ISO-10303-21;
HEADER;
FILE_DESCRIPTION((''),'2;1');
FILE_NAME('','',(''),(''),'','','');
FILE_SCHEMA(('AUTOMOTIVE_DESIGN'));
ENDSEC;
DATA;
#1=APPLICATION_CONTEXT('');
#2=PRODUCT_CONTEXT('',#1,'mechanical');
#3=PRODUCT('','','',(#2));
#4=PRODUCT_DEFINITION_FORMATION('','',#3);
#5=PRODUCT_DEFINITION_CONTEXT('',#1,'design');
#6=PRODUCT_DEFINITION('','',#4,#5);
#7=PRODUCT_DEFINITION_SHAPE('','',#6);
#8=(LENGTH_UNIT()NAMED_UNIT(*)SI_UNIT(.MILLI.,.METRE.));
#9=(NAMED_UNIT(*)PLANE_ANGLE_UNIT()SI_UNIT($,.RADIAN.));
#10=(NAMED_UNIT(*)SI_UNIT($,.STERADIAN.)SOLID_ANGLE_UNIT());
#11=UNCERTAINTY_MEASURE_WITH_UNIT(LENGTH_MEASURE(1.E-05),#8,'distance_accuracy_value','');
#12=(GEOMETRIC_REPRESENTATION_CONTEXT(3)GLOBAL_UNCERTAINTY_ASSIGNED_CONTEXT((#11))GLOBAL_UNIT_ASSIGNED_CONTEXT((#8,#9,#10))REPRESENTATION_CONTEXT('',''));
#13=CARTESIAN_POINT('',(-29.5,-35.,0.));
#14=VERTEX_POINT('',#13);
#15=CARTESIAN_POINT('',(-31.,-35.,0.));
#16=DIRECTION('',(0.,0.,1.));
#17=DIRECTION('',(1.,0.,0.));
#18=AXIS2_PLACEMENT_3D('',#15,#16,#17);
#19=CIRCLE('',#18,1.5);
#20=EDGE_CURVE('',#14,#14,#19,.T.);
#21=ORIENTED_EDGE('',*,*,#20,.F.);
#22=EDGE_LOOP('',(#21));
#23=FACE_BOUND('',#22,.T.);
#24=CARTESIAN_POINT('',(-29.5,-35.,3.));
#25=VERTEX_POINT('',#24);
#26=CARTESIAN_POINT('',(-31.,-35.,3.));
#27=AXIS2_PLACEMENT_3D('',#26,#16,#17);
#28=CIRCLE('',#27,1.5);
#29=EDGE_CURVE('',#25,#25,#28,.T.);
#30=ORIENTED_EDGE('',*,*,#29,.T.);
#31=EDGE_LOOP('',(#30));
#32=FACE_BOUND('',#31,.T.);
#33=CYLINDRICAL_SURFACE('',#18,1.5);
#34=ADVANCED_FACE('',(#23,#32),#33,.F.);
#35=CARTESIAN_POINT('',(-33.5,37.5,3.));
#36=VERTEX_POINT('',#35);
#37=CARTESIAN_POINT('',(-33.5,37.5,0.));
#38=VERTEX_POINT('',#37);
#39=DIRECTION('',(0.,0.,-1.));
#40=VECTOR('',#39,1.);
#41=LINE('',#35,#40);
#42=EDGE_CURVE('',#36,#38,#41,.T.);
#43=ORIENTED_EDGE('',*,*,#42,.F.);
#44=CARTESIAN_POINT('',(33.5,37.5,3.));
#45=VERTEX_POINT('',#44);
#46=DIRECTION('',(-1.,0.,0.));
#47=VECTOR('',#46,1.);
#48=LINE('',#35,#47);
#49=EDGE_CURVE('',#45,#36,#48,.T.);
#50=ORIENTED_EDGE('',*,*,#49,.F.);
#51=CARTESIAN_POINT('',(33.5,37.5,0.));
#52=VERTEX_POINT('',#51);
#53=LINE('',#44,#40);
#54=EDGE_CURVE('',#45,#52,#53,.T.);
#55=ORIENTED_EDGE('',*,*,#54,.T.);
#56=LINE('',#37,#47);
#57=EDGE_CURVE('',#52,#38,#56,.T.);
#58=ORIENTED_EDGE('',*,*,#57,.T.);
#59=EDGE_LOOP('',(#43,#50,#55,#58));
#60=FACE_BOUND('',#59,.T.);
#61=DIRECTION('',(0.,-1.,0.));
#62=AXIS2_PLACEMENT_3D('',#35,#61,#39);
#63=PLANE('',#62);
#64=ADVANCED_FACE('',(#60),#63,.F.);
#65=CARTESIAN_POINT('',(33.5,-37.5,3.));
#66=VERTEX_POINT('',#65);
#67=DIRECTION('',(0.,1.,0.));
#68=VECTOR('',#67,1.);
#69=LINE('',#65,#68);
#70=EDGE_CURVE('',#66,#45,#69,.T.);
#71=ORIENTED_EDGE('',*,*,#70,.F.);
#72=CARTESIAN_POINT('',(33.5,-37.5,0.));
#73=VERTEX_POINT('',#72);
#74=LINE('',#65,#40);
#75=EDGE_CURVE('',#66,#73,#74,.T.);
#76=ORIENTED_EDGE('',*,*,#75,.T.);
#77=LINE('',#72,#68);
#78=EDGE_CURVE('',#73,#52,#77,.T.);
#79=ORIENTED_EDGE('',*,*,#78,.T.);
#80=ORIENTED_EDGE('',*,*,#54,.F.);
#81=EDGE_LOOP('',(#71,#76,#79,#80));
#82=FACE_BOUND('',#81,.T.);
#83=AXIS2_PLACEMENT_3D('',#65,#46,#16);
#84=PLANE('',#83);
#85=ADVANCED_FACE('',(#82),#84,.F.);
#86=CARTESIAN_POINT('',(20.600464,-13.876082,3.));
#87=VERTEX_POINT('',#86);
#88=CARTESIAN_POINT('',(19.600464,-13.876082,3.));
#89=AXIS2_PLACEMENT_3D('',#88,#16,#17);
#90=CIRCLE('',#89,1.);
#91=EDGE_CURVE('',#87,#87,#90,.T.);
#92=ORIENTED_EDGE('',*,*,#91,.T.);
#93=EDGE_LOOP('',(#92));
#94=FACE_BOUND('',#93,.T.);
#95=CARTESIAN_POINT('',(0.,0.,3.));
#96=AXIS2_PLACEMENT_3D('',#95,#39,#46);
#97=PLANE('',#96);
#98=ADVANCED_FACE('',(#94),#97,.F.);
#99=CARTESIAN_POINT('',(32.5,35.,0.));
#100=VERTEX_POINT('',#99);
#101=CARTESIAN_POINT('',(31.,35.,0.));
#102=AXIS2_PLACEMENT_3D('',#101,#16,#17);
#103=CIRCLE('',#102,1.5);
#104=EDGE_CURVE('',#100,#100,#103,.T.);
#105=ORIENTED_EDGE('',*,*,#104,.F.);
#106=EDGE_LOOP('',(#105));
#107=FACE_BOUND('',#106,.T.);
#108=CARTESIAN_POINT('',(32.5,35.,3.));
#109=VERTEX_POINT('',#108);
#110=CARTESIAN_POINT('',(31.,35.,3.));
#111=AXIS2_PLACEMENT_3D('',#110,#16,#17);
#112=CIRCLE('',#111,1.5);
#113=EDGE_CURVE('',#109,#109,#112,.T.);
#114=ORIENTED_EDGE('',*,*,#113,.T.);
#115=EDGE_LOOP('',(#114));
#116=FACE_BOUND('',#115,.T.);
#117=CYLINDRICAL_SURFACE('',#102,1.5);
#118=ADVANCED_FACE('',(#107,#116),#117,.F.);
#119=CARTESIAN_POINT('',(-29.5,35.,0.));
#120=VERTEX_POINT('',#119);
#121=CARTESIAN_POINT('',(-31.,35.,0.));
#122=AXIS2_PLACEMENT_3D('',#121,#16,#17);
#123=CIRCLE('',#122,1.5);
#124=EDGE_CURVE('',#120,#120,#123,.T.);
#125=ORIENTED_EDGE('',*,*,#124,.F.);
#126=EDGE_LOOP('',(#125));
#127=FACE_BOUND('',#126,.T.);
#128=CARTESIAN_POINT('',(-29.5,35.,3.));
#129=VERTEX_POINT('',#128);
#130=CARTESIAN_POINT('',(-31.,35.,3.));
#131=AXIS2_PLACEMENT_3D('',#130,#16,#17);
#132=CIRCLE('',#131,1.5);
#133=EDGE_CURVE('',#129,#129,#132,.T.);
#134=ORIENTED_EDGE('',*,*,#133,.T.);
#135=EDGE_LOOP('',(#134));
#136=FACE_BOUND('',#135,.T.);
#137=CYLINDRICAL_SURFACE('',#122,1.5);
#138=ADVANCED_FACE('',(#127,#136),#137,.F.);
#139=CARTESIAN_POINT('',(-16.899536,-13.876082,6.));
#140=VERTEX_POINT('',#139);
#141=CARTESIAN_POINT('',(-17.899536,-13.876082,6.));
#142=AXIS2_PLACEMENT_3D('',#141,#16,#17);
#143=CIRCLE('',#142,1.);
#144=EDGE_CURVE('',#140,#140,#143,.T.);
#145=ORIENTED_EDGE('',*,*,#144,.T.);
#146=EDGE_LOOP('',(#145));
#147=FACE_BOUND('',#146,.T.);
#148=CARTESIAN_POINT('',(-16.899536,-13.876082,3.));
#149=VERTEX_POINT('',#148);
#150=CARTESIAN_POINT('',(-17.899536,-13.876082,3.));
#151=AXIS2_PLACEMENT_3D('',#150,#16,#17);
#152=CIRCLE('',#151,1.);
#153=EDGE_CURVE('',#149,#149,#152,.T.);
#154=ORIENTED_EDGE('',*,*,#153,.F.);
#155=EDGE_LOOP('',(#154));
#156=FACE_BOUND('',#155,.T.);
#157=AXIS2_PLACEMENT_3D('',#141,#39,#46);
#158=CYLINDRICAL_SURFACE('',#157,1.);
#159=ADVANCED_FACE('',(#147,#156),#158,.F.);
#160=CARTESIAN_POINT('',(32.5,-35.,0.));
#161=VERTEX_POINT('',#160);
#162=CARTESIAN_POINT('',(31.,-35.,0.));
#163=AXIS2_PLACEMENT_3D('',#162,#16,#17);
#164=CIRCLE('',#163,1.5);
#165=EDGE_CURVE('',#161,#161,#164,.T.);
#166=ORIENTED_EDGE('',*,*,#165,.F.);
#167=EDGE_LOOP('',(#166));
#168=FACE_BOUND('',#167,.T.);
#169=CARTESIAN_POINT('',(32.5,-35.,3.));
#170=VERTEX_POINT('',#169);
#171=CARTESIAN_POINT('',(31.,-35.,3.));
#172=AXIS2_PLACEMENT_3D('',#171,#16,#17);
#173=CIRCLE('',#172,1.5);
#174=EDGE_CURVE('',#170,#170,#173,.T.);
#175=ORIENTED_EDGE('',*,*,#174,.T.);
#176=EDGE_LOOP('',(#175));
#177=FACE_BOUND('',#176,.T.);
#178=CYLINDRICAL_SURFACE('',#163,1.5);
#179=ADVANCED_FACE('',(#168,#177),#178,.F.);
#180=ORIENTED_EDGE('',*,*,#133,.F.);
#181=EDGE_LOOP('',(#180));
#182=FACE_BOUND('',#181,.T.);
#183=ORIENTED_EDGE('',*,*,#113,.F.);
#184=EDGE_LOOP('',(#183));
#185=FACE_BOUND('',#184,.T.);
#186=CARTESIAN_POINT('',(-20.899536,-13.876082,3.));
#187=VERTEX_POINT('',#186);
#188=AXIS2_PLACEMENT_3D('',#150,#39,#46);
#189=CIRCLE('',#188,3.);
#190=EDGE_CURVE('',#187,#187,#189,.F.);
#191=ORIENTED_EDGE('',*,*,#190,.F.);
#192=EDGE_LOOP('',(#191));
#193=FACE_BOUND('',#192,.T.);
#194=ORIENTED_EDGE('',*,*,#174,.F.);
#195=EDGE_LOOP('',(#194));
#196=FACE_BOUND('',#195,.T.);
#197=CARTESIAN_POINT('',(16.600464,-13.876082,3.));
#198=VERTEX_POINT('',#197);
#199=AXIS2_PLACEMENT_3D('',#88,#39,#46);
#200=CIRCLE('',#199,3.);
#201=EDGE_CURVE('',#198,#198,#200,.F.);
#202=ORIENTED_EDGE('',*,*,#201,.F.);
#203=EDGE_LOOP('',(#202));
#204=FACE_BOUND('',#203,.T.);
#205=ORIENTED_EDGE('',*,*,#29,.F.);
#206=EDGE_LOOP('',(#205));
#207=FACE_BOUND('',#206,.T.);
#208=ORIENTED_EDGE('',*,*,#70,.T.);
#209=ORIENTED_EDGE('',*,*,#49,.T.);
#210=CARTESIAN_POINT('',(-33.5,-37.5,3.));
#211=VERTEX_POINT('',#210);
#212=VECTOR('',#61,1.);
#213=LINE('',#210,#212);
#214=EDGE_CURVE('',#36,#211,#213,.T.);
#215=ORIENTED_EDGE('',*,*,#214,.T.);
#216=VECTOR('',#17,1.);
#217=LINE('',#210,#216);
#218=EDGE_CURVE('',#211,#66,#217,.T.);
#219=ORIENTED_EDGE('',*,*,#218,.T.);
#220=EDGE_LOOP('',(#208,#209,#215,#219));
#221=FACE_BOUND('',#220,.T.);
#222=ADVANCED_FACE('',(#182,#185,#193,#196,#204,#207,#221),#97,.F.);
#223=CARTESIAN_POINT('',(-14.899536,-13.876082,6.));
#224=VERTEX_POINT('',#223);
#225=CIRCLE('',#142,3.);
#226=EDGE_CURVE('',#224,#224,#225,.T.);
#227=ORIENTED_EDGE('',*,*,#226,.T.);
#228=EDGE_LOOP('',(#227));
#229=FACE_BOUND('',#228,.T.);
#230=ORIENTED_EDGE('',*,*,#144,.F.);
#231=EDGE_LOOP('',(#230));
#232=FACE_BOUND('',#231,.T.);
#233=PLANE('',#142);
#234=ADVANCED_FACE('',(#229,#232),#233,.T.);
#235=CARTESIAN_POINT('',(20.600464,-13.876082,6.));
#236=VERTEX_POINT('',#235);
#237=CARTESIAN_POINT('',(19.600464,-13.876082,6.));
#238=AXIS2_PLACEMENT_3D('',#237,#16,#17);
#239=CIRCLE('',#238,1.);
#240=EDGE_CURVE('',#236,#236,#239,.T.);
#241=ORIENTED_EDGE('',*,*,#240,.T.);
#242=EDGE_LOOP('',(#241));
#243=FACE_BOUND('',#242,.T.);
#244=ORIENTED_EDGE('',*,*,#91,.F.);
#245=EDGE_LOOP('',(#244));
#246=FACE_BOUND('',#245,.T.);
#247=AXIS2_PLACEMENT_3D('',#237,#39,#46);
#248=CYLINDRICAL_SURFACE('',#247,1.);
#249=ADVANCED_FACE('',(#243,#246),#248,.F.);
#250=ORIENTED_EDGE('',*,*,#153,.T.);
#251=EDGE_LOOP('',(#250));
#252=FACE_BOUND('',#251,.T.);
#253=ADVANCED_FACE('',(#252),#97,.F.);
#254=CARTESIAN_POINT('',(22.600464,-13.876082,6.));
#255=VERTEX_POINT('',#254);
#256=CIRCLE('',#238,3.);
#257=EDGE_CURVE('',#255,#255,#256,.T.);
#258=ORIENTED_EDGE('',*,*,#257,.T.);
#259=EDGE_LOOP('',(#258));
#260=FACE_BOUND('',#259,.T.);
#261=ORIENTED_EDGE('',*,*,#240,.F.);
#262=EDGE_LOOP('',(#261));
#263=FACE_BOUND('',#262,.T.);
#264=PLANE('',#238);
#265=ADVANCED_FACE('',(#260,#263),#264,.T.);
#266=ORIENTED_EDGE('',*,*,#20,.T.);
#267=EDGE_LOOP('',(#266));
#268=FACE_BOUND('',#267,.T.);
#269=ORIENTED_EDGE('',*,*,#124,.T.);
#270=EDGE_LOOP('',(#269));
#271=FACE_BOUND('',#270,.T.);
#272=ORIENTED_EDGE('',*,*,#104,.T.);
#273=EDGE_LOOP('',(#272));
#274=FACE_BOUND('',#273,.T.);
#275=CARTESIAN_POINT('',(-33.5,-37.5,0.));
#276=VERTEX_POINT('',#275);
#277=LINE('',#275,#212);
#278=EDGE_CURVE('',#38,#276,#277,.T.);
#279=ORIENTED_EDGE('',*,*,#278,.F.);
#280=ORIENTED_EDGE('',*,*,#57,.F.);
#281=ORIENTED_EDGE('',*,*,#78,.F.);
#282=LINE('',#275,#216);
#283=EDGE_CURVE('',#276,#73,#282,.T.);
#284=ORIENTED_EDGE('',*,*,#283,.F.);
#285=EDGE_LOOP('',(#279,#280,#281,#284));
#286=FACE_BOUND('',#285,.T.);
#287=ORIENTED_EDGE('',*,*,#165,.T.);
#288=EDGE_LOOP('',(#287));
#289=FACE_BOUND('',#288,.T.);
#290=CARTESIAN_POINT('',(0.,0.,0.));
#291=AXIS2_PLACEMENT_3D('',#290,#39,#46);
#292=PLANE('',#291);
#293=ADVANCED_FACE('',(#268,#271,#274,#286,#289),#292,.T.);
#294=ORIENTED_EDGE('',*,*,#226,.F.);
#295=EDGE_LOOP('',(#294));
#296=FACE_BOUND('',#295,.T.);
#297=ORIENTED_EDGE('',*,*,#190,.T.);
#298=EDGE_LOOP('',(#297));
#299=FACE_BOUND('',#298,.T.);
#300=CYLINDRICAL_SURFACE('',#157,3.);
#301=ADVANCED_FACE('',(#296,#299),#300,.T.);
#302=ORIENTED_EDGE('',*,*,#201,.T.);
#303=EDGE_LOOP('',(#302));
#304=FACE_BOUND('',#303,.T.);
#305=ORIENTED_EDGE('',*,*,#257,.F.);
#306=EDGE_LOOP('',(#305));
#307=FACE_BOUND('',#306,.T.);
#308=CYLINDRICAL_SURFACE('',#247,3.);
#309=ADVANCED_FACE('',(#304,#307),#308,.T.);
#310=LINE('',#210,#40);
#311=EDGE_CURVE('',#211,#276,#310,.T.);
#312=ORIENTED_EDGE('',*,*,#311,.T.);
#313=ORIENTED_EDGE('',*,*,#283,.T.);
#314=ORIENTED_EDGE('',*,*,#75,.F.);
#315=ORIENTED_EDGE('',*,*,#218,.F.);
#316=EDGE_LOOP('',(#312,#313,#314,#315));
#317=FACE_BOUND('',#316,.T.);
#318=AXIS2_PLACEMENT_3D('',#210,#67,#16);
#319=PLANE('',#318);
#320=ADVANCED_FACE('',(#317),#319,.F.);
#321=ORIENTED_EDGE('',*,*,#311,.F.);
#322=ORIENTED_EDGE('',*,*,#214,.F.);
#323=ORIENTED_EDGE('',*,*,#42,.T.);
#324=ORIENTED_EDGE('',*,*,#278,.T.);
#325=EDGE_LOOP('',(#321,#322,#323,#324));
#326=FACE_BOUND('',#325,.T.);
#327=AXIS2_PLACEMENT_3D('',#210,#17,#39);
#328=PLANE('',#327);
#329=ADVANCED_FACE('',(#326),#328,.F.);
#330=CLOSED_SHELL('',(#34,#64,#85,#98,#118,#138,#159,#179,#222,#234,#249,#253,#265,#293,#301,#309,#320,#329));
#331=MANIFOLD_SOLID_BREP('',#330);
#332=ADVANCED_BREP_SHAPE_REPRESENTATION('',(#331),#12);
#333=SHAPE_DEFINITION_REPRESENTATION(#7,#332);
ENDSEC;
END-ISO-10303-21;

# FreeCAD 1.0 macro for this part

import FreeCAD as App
import Part
import Sketcher
from FreeCAD import Vector
Q = App.Units.Quantity

doc = App.newDocument("Part")
body = doc.addObject("PartDesign::Body", "Body")

sketch1 = body.newObject("Sketcher::SketchObject", "Sketch")
sketch1.AttachmentSupport = (doc.getObject("XY_Plane"), [""])
sketch1.MapMode = "FlatFace"
sketch1.addGeometry(Part.LineSegment(Vector(-34, 38, 0), Vector(-34, -38, 0)), False)
sketch1.addGeometry(Part.LineSegment(Vector(-34, -38, 0), Vector(34, -38, 0)), False)
sketch1.addGeometry(Part.LineSegment(Vector(34, -38, 0), Vector(34, 38, 0)), False)
sketch1.addGeometry(Part.LineSegment(Vector(34, 38, 0), Vector(-34, 38, 0)), False)
sketch1.addConstraint(Sketcher.Constraint("Coincident", 0, 2, 1, 1))
sketch1.addConstraint(Sketcher.Constraint("Coincident", 1, 2, 2, 1))
sketch1.addConstraint(Sketcher.Constraint("Coincident", 2, 2, 3, 1))
sketch1.addConstraint(Sketcher.Constraint("Coincident", 3, 2, 0, 1))
sketch1.addConstraint(Sketcher.Constraint("Vertical", 0))
sketch1.addConstraint(Sketcher.Constraint("Horizontal", 1))
sketch1.addConstraint(Sketcher.Constraint("Vertical", 2))
sketch1.addConstraint(Sketcher.Constraint("Horizontal", 3))
sketch1.addConstraint(Sketcher.Constraint("Symmetric", 0, 2, 2, 2, -1, 1))
sketch1.addConstraint(Sketcher.Constraint("DistanceX", 1, 1, 1, 2, Q("67 mm")))
sketch1.addConstraint(Sketcher.Constraint("DistanceY", 0, 2, 0, 1, Q("75 mm")))
pad1 = body.newObject("PartDesign::Pad", "Pad")
pad1.Profile = sketch1
pad1.Length = 3

sketch2 = body.newObject("Sketcher::SketchObject", "Sketch001")
sketch2.AttachmentSupport = (doc.getObject("XY_Plane"), [""])
sketch2.MapMode = "FlatFace"
sketch2.AttachmentOffset = App.Placement(Vector(0, 0, 3), App.Rotation())
sketch2.addGeometry(Part.Circle(Vector(-31, 35, 0), Vector(0, 0, 1), 1.5), False)
sketch2.addGeometry(Part.Circle(Vector(31, 35, 0), Vector(0, 0, 1), 1.5), False)
sketch2.addGeometry(Part.Circle(Vector(31, -35, 0), Vector(0, 0, 1), 1.5), False)
sketch2.addGeometry(Part.Circle(Vector(-31, -35, 0), Vector(0, 0, 1), 1.5), False)
sketch2.addConstraint(Sketcher.Constraint("Equal", 0, 1))
sketch2.addConstraint(Sketcher.Constraint("Equal", 1, 2))
sketch2.addConstraint(Sketcher.Constraint("Equal", 2, 3))
sketch2.addConstraint(Sketcher.Constraint("Symmetric", 0, 3, 2, 3, -1, 1))
sketch2.addConstraint(Sketcher.Constraint("Symmetric", 1, 3, 3, 3, -1, 1))
sketch2.addConstraint(Sketcher.Constraint("Symmetric", 0, 3, 1, 3, -2))
sketch2.addConstraint(Sketcher.Constraint("Diameter", 0, Q("3 mm")))
sketch2.addConstraint(Sketcher.Constraint("DistanceX", 0, 3, -1, 1, Q("31 mm")))
sketch2.addConstraint(Sketcher.Constraint("DistanceY", -1, 1, 0, 3, Q("35 mm")))
pocket1 = body.newObject("PartDesign::Pocket", "Pocket")
pocket1.Profile = sketch2
pocket1.Length = 3

sketch3 = body.newObject("Sketcher::SketchObject", "Sketch002")
sketch3.AttachmentSupport = (doc.getObject("XY_Plane"), [""])
sketch3.MapMode = "FlatFace"
sketch3.AttachmentOffset = App.Placement(Vector(0, 0, 3), App.Rotation())
sketch3.addGeometry(Part.Circle(Vector(-17.9, -13.9, 0), Vector(0, 0, 1), 3), False)
sketch3.addGeometry(Part.Circle(Vector(-17.9, -13.9, 0), Vector(0, 0, 1), 1), False)
sketch3.addGeometry(Part.Circle(Vector(19.6, -13.9, 0), Vector(0, 0, 1), 3), False)
sketch3.addGeometry(Part.Circle(Vector(19.6, -13.9, 0), Vector(0, 0, 1), 1), False)
sketch3.addConstraint(Sketcher.Constraint("Coincident", 1, 3, 0, 3))
sketch3.addConstraint(Sketcher.Constraint("Coincident", 3, 3, 2, 3))
sketch3.addConstraint(Sketcher.Constraint("Equal", 0, 2))
sketch3.addConstraint(Sketcher.Constraint("Equal", 1, 3))
sketch3.addConstraint(Sketcher.Constraint("Horizontal", 1, 3, 2, 3))
sketch3.addConstraint(Sketcher.Constraint("Diameter", 0, Q("6 mm")))
sketch3.addConstraint(Sketcher.Constraint("Diameter", 1, Q("2 mm")))
sketch3.addConstraint(Sketcher.Constraint("DistanceX", 0, 3, 2, 3, Q("37.5 mm")))
sketch3.addConstraint(Sketcher.Constraint("DistanceY", 0, 3, -1, 1, Q("13.876082 mm")))
sketch3.addConstraint(Sketcher.Constraint("DistanceX", 0, 3, -1, 1, Q("17.899536 mm")))
pad2 = body.newObject("PartDesign::Pad", "Pad001")
pad2.Profile = sketch3
pad2.Length = 3

doc.recompute()
